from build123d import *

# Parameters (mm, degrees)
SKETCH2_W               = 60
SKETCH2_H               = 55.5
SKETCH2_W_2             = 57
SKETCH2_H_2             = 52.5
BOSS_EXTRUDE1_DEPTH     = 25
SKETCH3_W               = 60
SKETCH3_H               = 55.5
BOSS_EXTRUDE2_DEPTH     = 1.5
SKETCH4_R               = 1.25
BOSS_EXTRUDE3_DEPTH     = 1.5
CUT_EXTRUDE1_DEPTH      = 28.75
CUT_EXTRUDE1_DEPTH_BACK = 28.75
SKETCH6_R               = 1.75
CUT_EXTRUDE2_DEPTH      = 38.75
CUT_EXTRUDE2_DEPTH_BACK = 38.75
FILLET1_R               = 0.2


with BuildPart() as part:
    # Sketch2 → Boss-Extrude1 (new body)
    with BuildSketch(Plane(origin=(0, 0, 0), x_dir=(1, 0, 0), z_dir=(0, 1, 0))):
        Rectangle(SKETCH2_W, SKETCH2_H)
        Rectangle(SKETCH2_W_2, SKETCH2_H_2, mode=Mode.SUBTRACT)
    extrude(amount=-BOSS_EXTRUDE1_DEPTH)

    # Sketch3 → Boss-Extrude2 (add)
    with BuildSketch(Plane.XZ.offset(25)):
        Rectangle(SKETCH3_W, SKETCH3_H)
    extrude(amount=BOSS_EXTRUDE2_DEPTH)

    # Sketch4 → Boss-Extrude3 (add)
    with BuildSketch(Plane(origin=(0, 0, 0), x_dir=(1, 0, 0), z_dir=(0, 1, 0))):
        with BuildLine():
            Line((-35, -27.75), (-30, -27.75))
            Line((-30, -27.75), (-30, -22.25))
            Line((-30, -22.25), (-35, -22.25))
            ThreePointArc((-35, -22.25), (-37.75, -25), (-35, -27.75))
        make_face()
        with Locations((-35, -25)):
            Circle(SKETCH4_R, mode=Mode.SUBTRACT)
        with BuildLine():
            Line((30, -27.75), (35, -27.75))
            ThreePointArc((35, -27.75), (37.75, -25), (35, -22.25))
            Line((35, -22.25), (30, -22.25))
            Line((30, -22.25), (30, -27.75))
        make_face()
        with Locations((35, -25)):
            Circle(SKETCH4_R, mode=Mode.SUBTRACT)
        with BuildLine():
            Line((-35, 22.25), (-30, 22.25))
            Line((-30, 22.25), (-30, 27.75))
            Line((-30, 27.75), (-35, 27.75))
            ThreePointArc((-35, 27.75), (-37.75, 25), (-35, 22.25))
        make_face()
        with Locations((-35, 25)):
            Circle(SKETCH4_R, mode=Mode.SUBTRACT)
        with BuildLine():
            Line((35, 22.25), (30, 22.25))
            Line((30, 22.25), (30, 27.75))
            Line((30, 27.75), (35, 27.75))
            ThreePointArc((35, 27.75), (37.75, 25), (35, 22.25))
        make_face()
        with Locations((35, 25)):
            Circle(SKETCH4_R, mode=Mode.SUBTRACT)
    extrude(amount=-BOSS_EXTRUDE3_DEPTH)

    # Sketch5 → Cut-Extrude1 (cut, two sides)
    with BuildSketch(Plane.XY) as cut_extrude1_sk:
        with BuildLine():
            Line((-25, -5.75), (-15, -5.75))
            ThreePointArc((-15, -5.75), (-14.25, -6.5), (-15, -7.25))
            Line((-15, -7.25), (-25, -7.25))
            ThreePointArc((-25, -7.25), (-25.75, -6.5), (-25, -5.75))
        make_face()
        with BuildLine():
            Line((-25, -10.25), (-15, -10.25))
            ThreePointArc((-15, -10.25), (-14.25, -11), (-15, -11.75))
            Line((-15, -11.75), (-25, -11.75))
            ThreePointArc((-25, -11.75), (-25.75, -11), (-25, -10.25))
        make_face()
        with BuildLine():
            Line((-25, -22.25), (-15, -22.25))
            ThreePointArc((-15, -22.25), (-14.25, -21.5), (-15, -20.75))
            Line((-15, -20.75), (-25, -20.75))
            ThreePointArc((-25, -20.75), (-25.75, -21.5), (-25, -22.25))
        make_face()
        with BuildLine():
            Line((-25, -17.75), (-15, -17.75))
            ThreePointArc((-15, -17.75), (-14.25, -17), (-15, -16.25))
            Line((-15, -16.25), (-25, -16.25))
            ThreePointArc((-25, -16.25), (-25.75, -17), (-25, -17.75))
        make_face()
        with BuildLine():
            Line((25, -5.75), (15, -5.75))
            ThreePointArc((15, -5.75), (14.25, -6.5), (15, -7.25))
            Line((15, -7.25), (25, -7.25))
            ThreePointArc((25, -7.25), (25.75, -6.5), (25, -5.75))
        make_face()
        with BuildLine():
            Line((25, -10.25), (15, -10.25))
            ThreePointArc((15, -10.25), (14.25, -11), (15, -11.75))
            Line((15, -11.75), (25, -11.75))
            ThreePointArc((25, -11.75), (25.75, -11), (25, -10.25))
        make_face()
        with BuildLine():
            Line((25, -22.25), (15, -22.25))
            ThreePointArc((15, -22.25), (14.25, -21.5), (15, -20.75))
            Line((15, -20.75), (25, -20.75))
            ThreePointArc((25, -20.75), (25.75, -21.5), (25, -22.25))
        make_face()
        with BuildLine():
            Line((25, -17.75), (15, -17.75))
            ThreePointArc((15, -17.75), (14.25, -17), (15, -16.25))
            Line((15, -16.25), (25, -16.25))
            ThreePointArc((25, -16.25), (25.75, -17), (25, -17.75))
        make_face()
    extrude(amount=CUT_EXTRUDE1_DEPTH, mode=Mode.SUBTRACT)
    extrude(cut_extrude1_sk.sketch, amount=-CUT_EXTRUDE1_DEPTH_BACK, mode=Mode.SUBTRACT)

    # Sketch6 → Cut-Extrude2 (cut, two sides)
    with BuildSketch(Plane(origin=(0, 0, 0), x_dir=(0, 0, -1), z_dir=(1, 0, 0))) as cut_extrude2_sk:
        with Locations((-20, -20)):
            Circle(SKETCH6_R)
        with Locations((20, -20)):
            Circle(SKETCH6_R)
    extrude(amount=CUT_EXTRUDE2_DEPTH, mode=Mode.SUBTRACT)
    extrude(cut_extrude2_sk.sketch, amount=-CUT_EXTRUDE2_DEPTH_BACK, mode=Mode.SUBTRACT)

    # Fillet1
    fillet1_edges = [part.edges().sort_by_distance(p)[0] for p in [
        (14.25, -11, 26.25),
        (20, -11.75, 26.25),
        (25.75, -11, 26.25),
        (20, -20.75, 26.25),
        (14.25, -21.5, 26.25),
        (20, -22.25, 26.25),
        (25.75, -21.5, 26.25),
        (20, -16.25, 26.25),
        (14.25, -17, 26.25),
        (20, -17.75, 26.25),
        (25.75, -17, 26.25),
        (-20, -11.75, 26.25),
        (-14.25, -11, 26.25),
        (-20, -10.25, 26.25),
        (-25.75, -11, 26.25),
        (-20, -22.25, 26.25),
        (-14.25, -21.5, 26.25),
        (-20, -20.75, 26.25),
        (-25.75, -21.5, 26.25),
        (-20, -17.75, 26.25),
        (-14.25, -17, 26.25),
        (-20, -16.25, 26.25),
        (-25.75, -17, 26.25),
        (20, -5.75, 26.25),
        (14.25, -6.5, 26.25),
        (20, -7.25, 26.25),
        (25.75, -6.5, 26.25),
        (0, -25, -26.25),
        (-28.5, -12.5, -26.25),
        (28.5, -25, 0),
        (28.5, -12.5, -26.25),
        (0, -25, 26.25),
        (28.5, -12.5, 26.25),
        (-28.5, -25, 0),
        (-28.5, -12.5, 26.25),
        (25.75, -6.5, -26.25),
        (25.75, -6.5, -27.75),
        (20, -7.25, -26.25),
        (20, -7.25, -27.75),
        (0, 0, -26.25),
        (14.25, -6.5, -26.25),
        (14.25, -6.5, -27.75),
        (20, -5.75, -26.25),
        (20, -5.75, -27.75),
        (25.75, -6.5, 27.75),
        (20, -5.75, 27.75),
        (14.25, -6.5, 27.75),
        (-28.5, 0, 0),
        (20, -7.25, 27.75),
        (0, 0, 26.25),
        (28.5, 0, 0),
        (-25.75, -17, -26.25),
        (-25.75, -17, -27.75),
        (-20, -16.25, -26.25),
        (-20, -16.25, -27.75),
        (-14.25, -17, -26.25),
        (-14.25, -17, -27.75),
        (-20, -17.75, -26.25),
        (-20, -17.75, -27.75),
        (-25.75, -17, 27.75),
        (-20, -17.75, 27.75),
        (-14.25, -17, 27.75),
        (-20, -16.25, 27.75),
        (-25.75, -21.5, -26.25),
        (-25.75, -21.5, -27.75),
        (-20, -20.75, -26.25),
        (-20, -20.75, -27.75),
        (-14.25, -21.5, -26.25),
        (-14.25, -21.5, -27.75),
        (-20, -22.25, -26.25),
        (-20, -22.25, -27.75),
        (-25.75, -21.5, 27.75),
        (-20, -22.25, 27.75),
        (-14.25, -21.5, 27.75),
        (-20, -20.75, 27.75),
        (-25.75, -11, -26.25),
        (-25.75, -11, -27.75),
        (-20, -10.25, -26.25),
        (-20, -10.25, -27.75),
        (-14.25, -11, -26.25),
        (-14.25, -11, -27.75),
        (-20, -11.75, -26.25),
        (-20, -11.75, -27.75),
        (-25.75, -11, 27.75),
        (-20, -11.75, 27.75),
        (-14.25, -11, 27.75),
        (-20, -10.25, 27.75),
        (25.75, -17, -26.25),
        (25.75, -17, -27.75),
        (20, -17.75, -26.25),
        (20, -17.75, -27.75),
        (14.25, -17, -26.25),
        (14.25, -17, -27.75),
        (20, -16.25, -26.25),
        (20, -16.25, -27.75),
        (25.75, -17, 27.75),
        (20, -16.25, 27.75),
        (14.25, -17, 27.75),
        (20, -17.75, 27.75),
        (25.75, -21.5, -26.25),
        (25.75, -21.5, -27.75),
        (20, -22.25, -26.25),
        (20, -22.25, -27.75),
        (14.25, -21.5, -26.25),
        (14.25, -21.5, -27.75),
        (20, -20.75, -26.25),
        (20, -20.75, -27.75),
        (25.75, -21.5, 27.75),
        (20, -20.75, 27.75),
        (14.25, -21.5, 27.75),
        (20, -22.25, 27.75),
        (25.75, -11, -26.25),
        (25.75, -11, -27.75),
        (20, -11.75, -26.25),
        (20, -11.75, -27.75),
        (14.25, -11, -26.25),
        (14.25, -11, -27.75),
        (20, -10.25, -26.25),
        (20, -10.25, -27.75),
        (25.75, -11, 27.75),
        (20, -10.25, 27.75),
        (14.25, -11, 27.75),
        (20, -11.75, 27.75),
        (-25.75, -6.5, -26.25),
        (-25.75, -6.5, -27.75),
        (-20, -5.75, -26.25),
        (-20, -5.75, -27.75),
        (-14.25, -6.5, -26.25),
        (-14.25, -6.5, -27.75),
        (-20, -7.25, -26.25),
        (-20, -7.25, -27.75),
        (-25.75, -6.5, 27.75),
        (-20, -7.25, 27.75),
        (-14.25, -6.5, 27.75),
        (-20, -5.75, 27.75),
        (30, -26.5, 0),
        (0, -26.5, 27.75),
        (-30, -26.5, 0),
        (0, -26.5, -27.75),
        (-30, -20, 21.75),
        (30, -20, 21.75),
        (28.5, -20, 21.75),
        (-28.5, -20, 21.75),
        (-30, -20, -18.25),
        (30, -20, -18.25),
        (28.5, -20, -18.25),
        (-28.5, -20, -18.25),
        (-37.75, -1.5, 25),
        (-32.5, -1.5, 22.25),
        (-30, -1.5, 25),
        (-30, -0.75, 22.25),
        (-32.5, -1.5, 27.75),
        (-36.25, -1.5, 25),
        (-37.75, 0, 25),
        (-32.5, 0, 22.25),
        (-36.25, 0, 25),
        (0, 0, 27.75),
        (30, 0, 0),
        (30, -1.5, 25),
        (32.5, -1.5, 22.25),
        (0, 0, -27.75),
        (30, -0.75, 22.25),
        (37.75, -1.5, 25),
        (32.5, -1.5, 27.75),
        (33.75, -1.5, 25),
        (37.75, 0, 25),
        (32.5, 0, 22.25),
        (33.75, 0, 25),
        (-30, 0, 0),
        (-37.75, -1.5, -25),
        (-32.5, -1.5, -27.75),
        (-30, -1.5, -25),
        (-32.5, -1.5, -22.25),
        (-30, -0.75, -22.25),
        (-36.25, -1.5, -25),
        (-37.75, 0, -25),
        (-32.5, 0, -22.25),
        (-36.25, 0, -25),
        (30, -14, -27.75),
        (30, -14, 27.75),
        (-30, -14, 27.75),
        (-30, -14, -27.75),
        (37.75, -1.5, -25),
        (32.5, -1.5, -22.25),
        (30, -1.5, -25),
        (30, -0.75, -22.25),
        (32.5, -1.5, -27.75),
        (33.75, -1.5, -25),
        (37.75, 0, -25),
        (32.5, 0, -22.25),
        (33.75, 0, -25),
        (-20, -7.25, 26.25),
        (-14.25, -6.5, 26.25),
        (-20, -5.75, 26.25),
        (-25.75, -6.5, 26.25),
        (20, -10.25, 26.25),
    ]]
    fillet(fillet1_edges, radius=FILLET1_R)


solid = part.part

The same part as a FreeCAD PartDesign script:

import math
import FreeCAD as App
import Part
import Sketcher

doc = App.newDocument("Part")
body = doc.addObject("PartDesign::Body", "Body")

# Sketch on XZ plane
sketch1 = body.newObject("Sketcher::SketchObject", "Sketch")
sketch1.AttachmentSupport = (doc.getObject("XZ_Plane"), [""])
sketch1.MapMode = "FlatFace"
sketch1.addGeometry([
    Part.LineSegment(App.Vector(-30, -28, 0), App.Vector(-30, 28, 0)),  # 0
    Part.LineSegment(App.Vector(-30, 28, 0), App.Vector(30, 28, 0)),  # 1
    Part.LineSegment(App.Vector(30, 28, 0), App.Vector(30, -28, 0)),  # 2
    Part.LineSegment(App.Vector(30, -28, 0), App.Vector(-30, -28, 0)),  # 3
    Part.LineSegment(App.Vector(28, 26, 0), App.Vector(-28, 26, 0)),  # 4
    Part.LineSegment(App.Vector(-28, 26, 0), App.Vector(-28, -26, 0)),  # 5
    Part.LineSegment(App.Vector(-28, -26, 0), App.Vector(28, -26, 0)),  # 6
    Part.LineSegment(App.Vector(28, -26, 0), App.Vector(28, 26, 0)),  # 7
], False)
sketch1.addConstraint([
    Sketcher.Constraint("Coincident", 0, 2, 1, 1),
    Sketcher.Constraint("Coincident", 1, 2, 2, 1),
    Sketcher.Constraint("Coincident", 2, 2, 3, 1),
    Sketcher.Constraint("Coincident", 3, 2, 0, 1),
    Sketcher.Constraint("Coincident", 4, 2, 5, 1),
    Sketcher.Constraint("Coincident", 5, 2, 6, 1),
    Sketcher.Constraint("Coincident", 6, 2, 7, 1),
    Sketcher.Constraint("Coincident", 7, 2, 4, 1),
    Sketcher.Constraint("Vertical", 0),
    Sketcher.Constraint("Horizontal", 1),
    Sketcher.Constraint("Vertical", 2),
    Sketcher.Constraint("Horizontal", 3),
    Sketcher.Constraint("Horizontal", 4),
    Sketcher.Constraint("Vertical", 5),
    Sketcher.Constraint("Horizontal", 6),
    Sketcher.Constraint("Vertical", 7),
    Sketcher.Constraint("Symmetric", 0, 2, 2, 2, -1, 1),
    Sketcher.Constraint("Symmetric", 4, 2, 6, 2, -1, 1),
    Sketcher.Constraint("DistanceX", 1, 1, 1, 2, 60.0),
    Sketcher.Constraint("DistanceX", 4, 2, 4, 1, 57.0),
    Sketcher.Constraint("DistanceY", 0, 1, 0, 2, 55.5),
    Sketcher.Constraint("DistanceY", 5, 2, 5, 1, 52.5),
])
pad1 = body.newObject("PartDesign::Pad", "Pad")
pad1.Profile = sketch1
pad1.Length = 25

# Sketch on XZ plane
sketch2 = body.newObject("Sketcher::SketchObject", "Sketch001")
sketch2.AttachmentSupport = (doc.getObject("XZ_Plane"), [""])
sketch2.MapMode = "FlatFace"
sketch2.AttachmentOffset = App.Placement(App.Vector(0, 0, 25), App.Rotation())
sketch2.addGeometry([
    Part.LineSegment(App.Vector(-30, 28, 0), App.Vector(-30, -28, 0)),
    Part.LineSegment(App.Vector(-30, -28, 0), App.Vector(30, -28, 0)),
    Part.LineSegment(App.Vector(30, -28, 0), App.Vector(30, 28, 0)),
    Part.LineSegment(App.Vector(30, 28, 0), App.Vector(-30, 28, 0)),
], False)
sketch2.addConstraint([
    Sketcher.Constraint("Coincident", 0, 2, 1, 1),
    Sketcher.Constraint("Coincident", 1, 2, 2, 1),
    Sketcher.Constraint("Coincident", 2, 2, 3, 1),
    Sketcher.Constraint("Coincident", 3, 2, 0, 1),
    Sketcher.Constraint("Vertical", 0),
    Sketcher.Constraint("Horizontal", 1),
    Sketcher.Constraint("Vertical", 2),
    Sketcher.Constraint("Horizontal", 3),
    Sketcher.Constraint("Symmetric", 0, 2, 2, 2, -1, 1),
    Sketcher.Constraint("DistanceX", 1, 1, 1, 2, 60.0),
    Sketcher.Constraint("DistanceY", 0, 2, 0, 1, 55.5),
])
pad2 = body.newObject("PartDesign::Pad", "Pad001")
pad2.Profile = sketch2
pad2.Length = 1.5

# Sketch on XZ plane
sketch3 = body.newObject("Sketcher::SketchObject", "Sketch002")
sketch3.AttachmentSupport = (doc.getObject("XZ_Plane"), [""])
sketch3.MapMode = "FlatFace"
sketch3.addGeometry([
    Part.LineSegment(App.Vector(-35, 27.8, 0), App.Vector(-30, 27.8, 0)),  # 0
    Part.LineSegment(App.Vector(-30, 27.8, 0), App.Vector(-30, 22.2, 0)),  # 1
    Part.LineSegment(App.Vector(-30, 22.2, 0), App.Vector(-35, 22.2, 0)),  # 2
    Part.ArcOfCircle(Part.Circle(App.Vector(-35, 25, 0), App.Vector(0, 0, 1), 2.8), math.radians(90), math.radians(270)),  # 3
    Part.Circle(App.Vector(-35, 25, 0), App.Vector(0, 0, 1), 1.2),  # 4
    Part.LineSegment(App.Vector(30, 27.8, 0), App.Vector(35, 27.8, 0)),  # 5
    Part.ArcOfCircle(Part.Circle(App.Vector(35, 25, 0), App.Vector(0, 0, 1), 2.8), math.radians(-90), math.radians(90)),  # 6
    Part.LineSegment(App.Vector(35, 22.2, 0), App.Vector(30, 22.2, 0)),  # 7
    Part.LineSegment(App.Vector(30, 22.2, 0), App.Vector(30, 27.8, 0)),  # 8
    Part.Circle(App.Vector(35, 25, 0), App.Vector(0, 0, 1), 1.2),  # 9
    Part.LineSegment(App.Vector(-35, -22.2, 0), App.Vector(-30, -22.2, 0)),  # 10
    Part.LineSegment(App.Vector(-30, -22.2, 0), App.Vector(-30, -27.8, 0)),  # 11
    Part.LineSegment(App.Vector(-30, -27.8, 0), App.Vector(-35, -27.8, 0)),  # 12
    Part.ArcOfCircle(Part.Circle(App.Vector(-35, -25, 0), App.Vector(0, 0, 1), 2.8), math.radians(90), math.radians(270)),  # 13
    Part.Circle(App.Vector(-35, -25, 0), App.Vector(0, 0, 1), 1.2),  # 14
    Part.LineSegment(App.Vector(30, -22.2, 0), App.Vector(35, -22.2, 0)),  # 15
    Part.ArcOfCircle(Part.Circle(App.Vector(35, -25, 0), App.Vector(0, 0, 1), 2.8), math.radians(-90), math.radians(90)),  # 16
    Part.LineSegment(App.Vector(35, -27.8, 0), App.Vector(30, -27.8, 0)),  # 17
    Part.LineSegment(App.Vector(30, -27.8, 0), App.Vector(30, -22.2, 0)),  # 18
    Part.Circle(App.Vector(35, -25, 0), App.Vector(0, 0, 1), 1.2),  # 19
], False)
sketch3.addConstraint([
    Sketcher.Constraint("Coincident", 0, 2, 1, 1),
    Sketcher.Constraint("Coincident", 1, 2, 2, 1),
    Sketcher.Constraint("Tangent", 2, 2, 3, 2),
    Sketcher.Constraint("Tangent", 3, 1, 0, 1),
    Sketcher.Constraint("Tangent", 5, 2, 6, 2),
    Sketcher.Constraint("Tangent", 6, 1, 7, 1),
    Sketcher.Constraint("Coincident", 7, 2, 8, 1),
    Sketcher.Constraint("Coincident", 8, 2, 5, 1),
    Sketcher.Constraint("Coincident", 10, 2, 11, 1),
    Sketcher.Constraint("Coincident", 11, 2, 12, 1),
    Sketcher.Constraint("Tangent", 12, 2, 13, 2),
    Sketcher.Constraint("Tangent", 13, 1, 10, 1),
    Sketcher.Constraint("Tangent", 15, 2, 16, 2),
    Sketcher.Constraint("Tangent", 16, 1, 17, 1),
    Sketcher.Constraint("Coincident", 17, 2, 18, 1),
    Sketcher.Constraint("Coincident", 18, 2, 15, 1),
    Sketcher.Constraint("Horizontal", 0),
    Sketcher.Constraint("Vertical", 1),
    Sketcher.Constraint("Horizontal", 2),
    Sketcher.Constraint("Horizontal", 5),
    Sketcher.Constraint("Horizontal", 7),
    Sketcher.Constraint("Vertical", 8),
    Sketcher.Constraint("Horizontal", 10),
    Sketcher.Constraint("Vertical", 11),
    Sketcher.Constraint("Horizontal", 12),
    Sketcher.Constraint("Horizontal", 15),
    Sketcher.Constraint("Horizontal", 17),
    Sketcher.Constraint("Vertical", 18),
    Sketcher.Constraint("Coincident", 4, 3, 3, 3),
    Sketcher.Constraint("Coincident", 9, 3, 6, 3),
    Sketcher.Constraint("Coincident", 14, 3, 13, 3),
    Sketcher.Constraint("Coincident", 19, 3, 16, 3),
    Sketcher.Constraint("Equal", 3, 6),
    Sketcher.Constraint("Equal", 4, 9),
    Sketcher.Constraint("Equal", 6, 13),
    Sketcher.Constraint("Equal", 9, 14),
    Sketcher.Constraint("Equal", 13, 16),
    Sketcher.Constraint("Equal", 14, 19),
    Sketcher.Constraint("Symmetric", 6, 3, 13, 3, -1, 1),
    Sketcher.Constraint("Symmetric", 3, 3, 16, 3, -1, 1),
    Sketcher.Constraint("Symmetric", 3, 3, 6, 3, -2),
    Sketcher.Constraint("Vertical", 1, 2, 10, 2),
    Sketcher.Constraint("Vertical", 8, 2, 17, 2),
    Sketcher.Constraint("Equal", 2, 5),
    Sketcher.Constraint("Diameter", 4, 2.5),
    Sketcher.Constraint("DistanceX", 0, 1, 0, 2, 5.0),
    Sketcher.Constraint("Radius", 3, 2.75),
    Sketcher.Constraint("DistanceX", 3, 3, -1, 1, 35.0),
    Sketcher.Constraint("DistanceY", -1, 1, 3, 3, 25.0),
])
pad3 = body.newObject("PartDesign::Pad", "Pad002")
pad3.Profile = sketch3
pad3.Length = 1.5

# Sketch on XY plane
sketch4 = body.newObject("Sketcher::SketchObject", "Sketch003")
sketch4.AttachmentSupport = (doc.getObject("XY_Plane"), [""])
sketch4.MapMode = "FlatFace"
sketch4.addGeometry([
    Part.LineSegment(App.Vector(-15, -5.8, 0), App.Vector(-25, -5.8, 0)),  # 0
    Part.ArcOfCircle(Part.Circle(App.Vector(-25, -6.5, 0), App.Vector(0, 0, 1), 0.8), math.radians(90), math.radians(270)),  # 1
    Part.LineSegment(App.Vector(-25, -7.2, 0), App.Vector(-15, -7.2, 0)),  # 2
    Part.ArcOfCircle(Part.Circle(App.Vector(-15, -6.5, 0), App.Vector(0, 0, 1), 0.8), math.radians(-90), math.radians(90)),  # 3
    Part.LineSegment(App.Vector(-15, -10.2, 0), App.Vector(-25, -10.2, 0)),  # 4
    Part.ArcOfCircle(Part.Circle(App.Vector(-25, -11, 0), App.Vector(0, 0, 1), 0.8), math.radians(90), math.radians(270)),  # 5
    Part.LineSegment(App.Vector(-25, -11.8, 0), App.Vector(-15, -11.8, 0)),  # 6
    Part.ArcOfCircle(Part.Circle(App.Vector(-15, -11, 0), App.Vector(0, 0, 1), 0.8), math.radians(-90), math.radians(90)),  # 7
    Part.LineSegment(App.Vector(-25, -22.2, 0), App.Vector(-15, -22.2, 0)),  # 8
    Part.ArcOfCircle(Part.Circle(App.Vector(-15, -21.5, 0), App.Vector(0, 0, 1), 0.8), math.radians(-90), math.radians(90)),  # 9
    Part.LineSegment(App.Vector(-15, -20.8, 0), App.Vector(-25, -20.8, 0)),  # 10
    Part.ArcOfCircle(Part.Circle(App.Vector(-25, -21.5, 0), App.Vector(0, 0, 1), 0.8), math.radians(90), math.radians(270)),  # 11
    Part.LineSegment(App.Vector(-25, -17.8, 0), App.Vector(-15, -17.8, 0)),  # 12
    Part.ArcOfCircle(Part.Circle(App.Vector(-15, -17, 0), App.Vector(0, 0, 1), 0.8), math.radians(-90), math.radians(90)),  # 13
    Part.LineSegment(App.Vector(-15, -16.2, 0), App.Vector(-25, -16.2, 0)),  # 14
    Part.ArcOfCircle(Part.Circle(App.Vector(-25, -17, 0), App.Vector(0, 0, 1), 0.8), math.radians(90), math.radians(270)),  # 15
    Part.LineSegment(App.Vector(25, -5.8, 0), App.Vector(15, -5.8, 0)),  # 16
    Part.ArcOfCircle(Part.Circle(App.Vector(15, -6.5, 0), App.Vector(0, 0, 1), 0.8), math.radians(90), math.radians(270)),  # 17
    Part.LineSegment(App.Vector(15, -7.2, 0), App.Vector(25, -7.2, 0)),  # 18
    Part.ArcOfCircle(Part.Circle(App.Vector(25, -6.5, 0), App.Vector(0, 0, 1), 0.8), math.radians(-90), math.radians(90)),  # 19
    Part.LineSegment(App.Vector(25, -10.2, 0), App.Vector(15, -10.2, 0)),  # 20
    Part.ArcOfCircle(Part.Circle(App.Vector(15, -11, 0), App.Vector(0, 0, 1), 0.8), math.radians(90), math.radians(270)),  # 21
    Part.LineSegment(App.Vector(15, -11.8, 0), App.Vector(25, -11.8, 0)),  # 22
    Part.ArcOfCircle(Part.Circle(App.Vector(25, -11, 0), App.Vector(0, 0, 1), 0.8), math.radians(-90), math.radians(90)),  # 23
    Part.LineSegment(App.Vector(15, -22.2, 0), App.Vector(25, -22.2, 0)),  # 24
    Part.ArcOfCircle(Part.Circle(App.Vector(25, -21.5, 0), App.Vector(0, 0, 1), 0.8), math.radians(-90), math.radians(90)),  # 25
    Part.LineSegment(App.Vector(25, -20.8, 0), App.Vector(15, -20.8, 0)),  # 26
    Part.ArcOfCircle(Part.Circle(App.Vector(15, -21.5, 0), App.Vector(0, 0, 1), 0.8), math.radians(90), math.radians(270)),  # 27
    Part.LineSegment(App.Vector(15, -17.8, 0), App.Vector(25, -17.8, 0)),  # 28
    Part.ArcOfCircle(Part.Circle(App.Vector(25, -17, 0), App.Vector(0, 0, 1), 0.8), math.radians(-90), math.radians(90)),  # 29
    Part.LineSegment(App.Vector(25, -16.2, 0), App.Vector(15, -16.2, 0)),  # 30
    Part.ArcOfCircle(Part.Circle(App.Vector(15, -17, 0), App.Vector(0, 0, 1), 0.8), math.radians(90), math.radians(270)),  # 31
], False)
sketch4.addConstraint([
    Sketcher.Constraint("Tangent", 0, 2, 1, 1),
    Sketcher.Constraint("Tangent", 1, 2, 2, 1),
    Sketcher.Constraint("Tangent", 2, 2, 3, 1),
    Sketcher.Constraint("Tangent", 3, 2, 0, 1),
    Sketcher.Constraint("Tangent", 4, 2, 5, 1),
    Sketcher.Constraint("Tangent", 5, 2, 6, 1),
    Sketcher.Constraint("Tangent", 6, 2, 7, 1),
    Sketcher.Constraint("Tangent", 7, 2, 4, 1),
    Sketcher.Constraint("Tangent", 8, 2, 9, 1),
    Sketcher.Constraint("Tangent", 9, 2, 10, 1),
    Sketcher.Constraint("Tangent", 10, 2, 11, 1),
    Sketcher.Constraint("Tangent", 11, 2, 8, 1),
    Sketcher.Constraint("Tangent", 12, 2, 13, 1),
    Sketcher.Constraint("Tangent", 13, 2, 14, 1),
    Sketcher.Constraint("Tangent", 14, 2, 15, 1),
    Sketcher.Constraint("Tangent", 15, 2, 12, 1),
    Sketcher.Constraint("Tangent", 16, 2, 17, 1),
    Sketcher.Constraint("Tangent", 17, 2, 18, 1),
    Sketcher.Constraint("Tangent", 18, 2, 19, 1),
    Sketcher.Constraint("Tangent", 19, 2, 16, 1),
    Sketcher.Constraint("Tangent", 20, 2, 21, 1),
    Sketcher.Constraint("Tangent", 21, 2, 22, 1),
    Sketcher.Constraint("Tangent", 22, 2, 23, 1),
    Sketcher.Constraint("Tangent", 23, 2, 20, 1),
    Sketcher.Constraint("Tangent", 24, 2, 25, 1),
    Sketcher.Constraint("Tangent", 25, 2, 26, 1),
    Sketcher.Constraint("Tangent", 26, 2, 27, 1),
    Sketcher.Constraint("Tangent", 27, 2, 24, 1),
    Sketcher.Constraint("Tangent", 28, 2, 29, 1),
    Sketcher.Constraint("Tangent", 29, 2, 30, 1),
    Sketcher.Constraint("Tangent", 30, 2, 31, 1),
    Sketcher.Constraint("Tangent", 31, 2, 28, 1),
    Sketcher.Constraint("Horizontal", 0),
    Sketcher.Constraint("Horizontal", 2),
    Sketcher.Constraint("Horizontal", 4),
    Sketcher.Constraint("Horizontal", 6),
    Sketcher.Constraint("Horizontal", 8),
    Sketcher.Constraint("Horizontal", 10),
    Sketcher.Constraint("Horizontal", 12),
    Sketcher.Constraint("Horizontal", 14),
    Sketcher.Constraint("Horizontal", 16),
    Sketcher.Constraint("Horizontal", 18),
    Sketcher.Constraint("Horizontal", 20),
    Sketcher.Constraint("Horizontal", 22),
    Sketcher.Constraint("Horizontal", 24),
    Sketcher.Constraint("Horizontal", 26),
    Sketcher.Constraint("Horizontal", 28),
    Sketcher.Constraint("Horizontal", 30),
    Sketcher.Constraint("Equal", 3, 5),
    Sketcher.Constraint("Equal", 7, 9),
    Sketcher.Constraint("Equal", 11, 13),
    Sketcher.Constraint("Equal", 15, 17),
    Sketcher.Constraint("Equal", 19, 21),
    Sketcher.Constraint("Equal", 23, 25),
    Sketcher.Constraint("Equal", 27, 29),
    Sketcher.Constraint("Symmetric", 3, 3, 17, 3, -2),
    Sketcher.Constraint("Symmetric", 7, 3, 21, 3, -2),
    Sketcher.Constraint("Symmetric", 11, 3, 25, 3, -2),
    Sketcher.Constraint("Symmetric", 15, 3, 29, 3, -2),
    Sketcher.Constraint("Vertical", 1, 3, 5, 3),
    Sketcher.Constraint("Vertical", 3, 3, 7, 3),
    Sketcher.Constraint("Vertical", 7, 3, 9, 3),
    Sketcher.Constraint("Vertical", 5, 3, 11, 3),
    Sketcher.Constraint("Vertical", 9, 3, 13, 3),
    Sketcher.Constraint("Vertical", 11, 3, 15, 3),
    Sketcher.Constraint("Vertical", 19, 3, 23, 3),
    Sketcher.Constraint("Vertical", 23, 3, 25, 3),
    Sketcher.Constraint("Vertical", 21, 3, 27, 3),
    Sketcher.Constraint("Vertical", 27, 3, 31, 3),
    Sketcher.Constraint("DistanceX", 0, 2, 0, 1, 10.0),
    Sketcher.Constraint("Radius", 1, 0.75),
    Sketcher.Constraint("DistanceX", 1, 3, -1, 1, 25.0),
    Sketcher.Constraint("DistanceY", 5, 3, -1, 1, 11.0),
    Sketcher.Constraint("DistanceY", 13, 3, -1, 1, 17.0),
    Sketcher.Constraint("DistanceY", 9, 3, 3, 3, 15.0),
    Sketcher.Constraint("DistanceY", 4, 2, 1, 2, 3.0),
])
pocket1 = body.newObject("PartDesign::Pocket", "Pocket")
pocket1.Profile = sketch4
pocket1.Type = "ThroughAll"
pocket1.Midplane = True

# Sketch on YZ plane
sketch5 = body.newObject("Sketcher::SketchObject", "Sketch004")
sketch5.AttachmentSupport = (doc.getObject("YZ_Plane"), [""])
sketch5.MapMode = "FlatFace"
sketch5.addGeometry([
    Part.Circle(App.Vector(-20, 20, 0), App.Vector(0, 0, 1), 1.8),
    Part.Circle(App.Vector(-20, -20, 0), App.Vector(0, 0, 1), 1.8),
], False)
sketch5.addConstraint([
    Sketcher.Constraint("Equal", 0, 1),
    Sketcher.Constraint("Symmetric", 0, 3, 1, 3, -1),
    Sketcher.Constraint("Diameter", 0, 3.5),
    Sketcher.Constraint("DistanceX", 0, 3, -1, 1, 20.0),
    Sketcher.Constraint("DistanceY", -1, 1, 0, 3, 20.0),
])
pocket2 = body.newObject("PartDesign::Pocket", "Pocket001")
pocket2.Profile = sketch5
pocket2.Type = "ThroughAll"
pocket2.Midplane = True
doc.recompute()

fillet = body.newObject("PartDesign::Fillet", "Fillet")
fillet.Base = (pocket2, ["Edge1"])
fillet.UseAllEdges = True
fillet.Radius = 0.2

doc.recompute()
